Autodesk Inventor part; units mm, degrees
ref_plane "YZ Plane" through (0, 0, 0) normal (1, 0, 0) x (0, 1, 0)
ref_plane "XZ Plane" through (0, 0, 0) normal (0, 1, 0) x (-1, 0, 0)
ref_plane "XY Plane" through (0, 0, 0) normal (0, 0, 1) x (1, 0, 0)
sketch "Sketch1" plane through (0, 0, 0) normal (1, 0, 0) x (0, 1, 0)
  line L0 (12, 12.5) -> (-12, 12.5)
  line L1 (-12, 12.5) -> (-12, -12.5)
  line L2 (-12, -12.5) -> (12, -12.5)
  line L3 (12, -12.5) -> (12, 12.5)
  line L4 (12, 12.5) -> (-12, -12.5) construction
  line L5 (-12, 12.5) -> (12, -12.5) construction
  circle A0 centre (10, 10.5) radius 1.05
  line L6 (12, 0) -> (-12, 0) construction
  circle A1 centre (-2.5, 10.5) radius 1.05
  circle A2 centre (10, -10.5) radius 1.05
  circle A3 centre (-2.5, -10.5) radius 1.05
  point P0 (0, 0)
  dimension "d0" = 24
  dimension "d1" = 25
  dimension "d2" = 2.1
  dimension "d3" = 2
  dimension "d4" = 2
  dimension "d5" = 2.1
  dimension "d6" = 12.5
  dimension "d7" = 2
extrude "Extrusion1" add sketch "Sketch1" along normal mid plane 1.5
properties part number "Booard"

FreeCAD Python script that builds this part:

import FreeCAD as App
import Part
import Sketcher
from FreeCAD import Vector
Q = App.Units.Quantity

doc = App.newDocument("Part")
body = doc.addObject("PartDesign::Body", "Body")

sketch1 = body.newObject("Sketcher::SketchObject", "Sketch")
sketch1.AttachmentSupport = (doc.getObject("YZ_Plane"), [""])
sketch1.MapMode = "FlatFace"
sketch1.addGeometry(Part.LineSegment(Vector(12, -12.5, 0), Vector(12, 12.5, 0)), False)
sketch1.addGeometry(Part.LineSegment(Vector(12, 12.5, 0), Vector(-12, 12.5, 0)), False)
sketch1.addGeometry(Part.LineSegment(Vector(-12, 12.5, 0), Vector(-12, -12.5, 0)), False)
sketch1.addGeometry(Part.LineSegment(Vector(-12, -12.5, 0), Vector(12, -12.5, 0)), False)
sketch1.addGeometry(Part.Circle(Vector(-2.5, -10.5, 0), Vector(0, 0, 1), 1.1), False)
sketch1.addGeometry(Part.Circle(Vector(10, -10.5, 0), Vector(0, 0, 1), 1.1), False)
sketch1.addGeometry(Part.Circle(Vector(-2.5, 10.5, 0), Vector(0, 0, 1), 1.1), False)
sketch1.addGeometry(Part.Circle(Vector(10, 10.5, 0), Vector(0, 0, 1), 1.1), False)
sketch1.addConstraint(Sketcher.Constraint("Coincident", 0, 2, 1, 1))
sketch1.addConstraint(Sketcher.Constraint("Coincident", 1, 2, 2, 1))
sketch1.addConstraint(Sketcher.Constraint("Coincident", 2, 2, 3, 1))
sketch1.addConstraint(Sketcher.Constraint("Coincident", 3, 2, 0, 1))
sketch1.addConstraint(Sketcher.Constraint("Vertical", 0))
sketch1.addConstraint(Sketcher.Constraint("Horizontal", 1))
sketch1.addConstraint(Sketcher.Constraint("Vertical", 2))
sketch1.addConstraint(Sketcher.Constraint("Horizontal", 3))
sketch1.addConstraint(Sketcher.Constraint("Equal", 4, 5))
sketch1.addConstraint(Sketcher.Constraint("Equal", 5, 6))
sketch1.addConstraint(Sketcher.Constraint("Equal", 6, 7))
sketch1.addConstraint(Sketcher.Constraint("Symmetric", 0, 2, 2, 2, -1, 1))
sketch1.addConstraint(Sketcher.Constraint("Symmetric", 4, 3, 6, 3, -1))
sketch1.addConstraint(Sketcher.Constraint("Symmetric", 5, 3, 7, 3, -1))
sketch1.addConstraint(Sketcher.Constraint("Horizontal", 4, 3, 5, 3))
sketch1.addConstraint(Sketcher.Constraint("Diameter", 4, Q("2.1 mm")))
sketch1.addConstraint(Sketcher.Constraint("DistanceX", 1, 2, 1, 1, Q("24 mm")))
sketch1.addConstraint(Sketcher.Constraint("DistanceY", 0, 1, 0, 2, Q("25 mm")))
sketch1.addConstraint(Sketcher.Constraint("DistanceX", 7, 3, 0, 2, Q("2 mm")))
sketch1.addConstraint(Sketcher.Constraint("DistanceY", 7, 3, 0, 2, Q("2 mm")))
sketch1.addConstraint(Sketcher.Constraint("DistanceX", 4, 3, 5, 3, Q("12.5 mm")))
pad1 = body.newObject("PartDesign::Pad", "Pad")
pad1.Profile = sketch1
pad1.Length = 1.5
pad1.Midplane = True

doc.recompute()
